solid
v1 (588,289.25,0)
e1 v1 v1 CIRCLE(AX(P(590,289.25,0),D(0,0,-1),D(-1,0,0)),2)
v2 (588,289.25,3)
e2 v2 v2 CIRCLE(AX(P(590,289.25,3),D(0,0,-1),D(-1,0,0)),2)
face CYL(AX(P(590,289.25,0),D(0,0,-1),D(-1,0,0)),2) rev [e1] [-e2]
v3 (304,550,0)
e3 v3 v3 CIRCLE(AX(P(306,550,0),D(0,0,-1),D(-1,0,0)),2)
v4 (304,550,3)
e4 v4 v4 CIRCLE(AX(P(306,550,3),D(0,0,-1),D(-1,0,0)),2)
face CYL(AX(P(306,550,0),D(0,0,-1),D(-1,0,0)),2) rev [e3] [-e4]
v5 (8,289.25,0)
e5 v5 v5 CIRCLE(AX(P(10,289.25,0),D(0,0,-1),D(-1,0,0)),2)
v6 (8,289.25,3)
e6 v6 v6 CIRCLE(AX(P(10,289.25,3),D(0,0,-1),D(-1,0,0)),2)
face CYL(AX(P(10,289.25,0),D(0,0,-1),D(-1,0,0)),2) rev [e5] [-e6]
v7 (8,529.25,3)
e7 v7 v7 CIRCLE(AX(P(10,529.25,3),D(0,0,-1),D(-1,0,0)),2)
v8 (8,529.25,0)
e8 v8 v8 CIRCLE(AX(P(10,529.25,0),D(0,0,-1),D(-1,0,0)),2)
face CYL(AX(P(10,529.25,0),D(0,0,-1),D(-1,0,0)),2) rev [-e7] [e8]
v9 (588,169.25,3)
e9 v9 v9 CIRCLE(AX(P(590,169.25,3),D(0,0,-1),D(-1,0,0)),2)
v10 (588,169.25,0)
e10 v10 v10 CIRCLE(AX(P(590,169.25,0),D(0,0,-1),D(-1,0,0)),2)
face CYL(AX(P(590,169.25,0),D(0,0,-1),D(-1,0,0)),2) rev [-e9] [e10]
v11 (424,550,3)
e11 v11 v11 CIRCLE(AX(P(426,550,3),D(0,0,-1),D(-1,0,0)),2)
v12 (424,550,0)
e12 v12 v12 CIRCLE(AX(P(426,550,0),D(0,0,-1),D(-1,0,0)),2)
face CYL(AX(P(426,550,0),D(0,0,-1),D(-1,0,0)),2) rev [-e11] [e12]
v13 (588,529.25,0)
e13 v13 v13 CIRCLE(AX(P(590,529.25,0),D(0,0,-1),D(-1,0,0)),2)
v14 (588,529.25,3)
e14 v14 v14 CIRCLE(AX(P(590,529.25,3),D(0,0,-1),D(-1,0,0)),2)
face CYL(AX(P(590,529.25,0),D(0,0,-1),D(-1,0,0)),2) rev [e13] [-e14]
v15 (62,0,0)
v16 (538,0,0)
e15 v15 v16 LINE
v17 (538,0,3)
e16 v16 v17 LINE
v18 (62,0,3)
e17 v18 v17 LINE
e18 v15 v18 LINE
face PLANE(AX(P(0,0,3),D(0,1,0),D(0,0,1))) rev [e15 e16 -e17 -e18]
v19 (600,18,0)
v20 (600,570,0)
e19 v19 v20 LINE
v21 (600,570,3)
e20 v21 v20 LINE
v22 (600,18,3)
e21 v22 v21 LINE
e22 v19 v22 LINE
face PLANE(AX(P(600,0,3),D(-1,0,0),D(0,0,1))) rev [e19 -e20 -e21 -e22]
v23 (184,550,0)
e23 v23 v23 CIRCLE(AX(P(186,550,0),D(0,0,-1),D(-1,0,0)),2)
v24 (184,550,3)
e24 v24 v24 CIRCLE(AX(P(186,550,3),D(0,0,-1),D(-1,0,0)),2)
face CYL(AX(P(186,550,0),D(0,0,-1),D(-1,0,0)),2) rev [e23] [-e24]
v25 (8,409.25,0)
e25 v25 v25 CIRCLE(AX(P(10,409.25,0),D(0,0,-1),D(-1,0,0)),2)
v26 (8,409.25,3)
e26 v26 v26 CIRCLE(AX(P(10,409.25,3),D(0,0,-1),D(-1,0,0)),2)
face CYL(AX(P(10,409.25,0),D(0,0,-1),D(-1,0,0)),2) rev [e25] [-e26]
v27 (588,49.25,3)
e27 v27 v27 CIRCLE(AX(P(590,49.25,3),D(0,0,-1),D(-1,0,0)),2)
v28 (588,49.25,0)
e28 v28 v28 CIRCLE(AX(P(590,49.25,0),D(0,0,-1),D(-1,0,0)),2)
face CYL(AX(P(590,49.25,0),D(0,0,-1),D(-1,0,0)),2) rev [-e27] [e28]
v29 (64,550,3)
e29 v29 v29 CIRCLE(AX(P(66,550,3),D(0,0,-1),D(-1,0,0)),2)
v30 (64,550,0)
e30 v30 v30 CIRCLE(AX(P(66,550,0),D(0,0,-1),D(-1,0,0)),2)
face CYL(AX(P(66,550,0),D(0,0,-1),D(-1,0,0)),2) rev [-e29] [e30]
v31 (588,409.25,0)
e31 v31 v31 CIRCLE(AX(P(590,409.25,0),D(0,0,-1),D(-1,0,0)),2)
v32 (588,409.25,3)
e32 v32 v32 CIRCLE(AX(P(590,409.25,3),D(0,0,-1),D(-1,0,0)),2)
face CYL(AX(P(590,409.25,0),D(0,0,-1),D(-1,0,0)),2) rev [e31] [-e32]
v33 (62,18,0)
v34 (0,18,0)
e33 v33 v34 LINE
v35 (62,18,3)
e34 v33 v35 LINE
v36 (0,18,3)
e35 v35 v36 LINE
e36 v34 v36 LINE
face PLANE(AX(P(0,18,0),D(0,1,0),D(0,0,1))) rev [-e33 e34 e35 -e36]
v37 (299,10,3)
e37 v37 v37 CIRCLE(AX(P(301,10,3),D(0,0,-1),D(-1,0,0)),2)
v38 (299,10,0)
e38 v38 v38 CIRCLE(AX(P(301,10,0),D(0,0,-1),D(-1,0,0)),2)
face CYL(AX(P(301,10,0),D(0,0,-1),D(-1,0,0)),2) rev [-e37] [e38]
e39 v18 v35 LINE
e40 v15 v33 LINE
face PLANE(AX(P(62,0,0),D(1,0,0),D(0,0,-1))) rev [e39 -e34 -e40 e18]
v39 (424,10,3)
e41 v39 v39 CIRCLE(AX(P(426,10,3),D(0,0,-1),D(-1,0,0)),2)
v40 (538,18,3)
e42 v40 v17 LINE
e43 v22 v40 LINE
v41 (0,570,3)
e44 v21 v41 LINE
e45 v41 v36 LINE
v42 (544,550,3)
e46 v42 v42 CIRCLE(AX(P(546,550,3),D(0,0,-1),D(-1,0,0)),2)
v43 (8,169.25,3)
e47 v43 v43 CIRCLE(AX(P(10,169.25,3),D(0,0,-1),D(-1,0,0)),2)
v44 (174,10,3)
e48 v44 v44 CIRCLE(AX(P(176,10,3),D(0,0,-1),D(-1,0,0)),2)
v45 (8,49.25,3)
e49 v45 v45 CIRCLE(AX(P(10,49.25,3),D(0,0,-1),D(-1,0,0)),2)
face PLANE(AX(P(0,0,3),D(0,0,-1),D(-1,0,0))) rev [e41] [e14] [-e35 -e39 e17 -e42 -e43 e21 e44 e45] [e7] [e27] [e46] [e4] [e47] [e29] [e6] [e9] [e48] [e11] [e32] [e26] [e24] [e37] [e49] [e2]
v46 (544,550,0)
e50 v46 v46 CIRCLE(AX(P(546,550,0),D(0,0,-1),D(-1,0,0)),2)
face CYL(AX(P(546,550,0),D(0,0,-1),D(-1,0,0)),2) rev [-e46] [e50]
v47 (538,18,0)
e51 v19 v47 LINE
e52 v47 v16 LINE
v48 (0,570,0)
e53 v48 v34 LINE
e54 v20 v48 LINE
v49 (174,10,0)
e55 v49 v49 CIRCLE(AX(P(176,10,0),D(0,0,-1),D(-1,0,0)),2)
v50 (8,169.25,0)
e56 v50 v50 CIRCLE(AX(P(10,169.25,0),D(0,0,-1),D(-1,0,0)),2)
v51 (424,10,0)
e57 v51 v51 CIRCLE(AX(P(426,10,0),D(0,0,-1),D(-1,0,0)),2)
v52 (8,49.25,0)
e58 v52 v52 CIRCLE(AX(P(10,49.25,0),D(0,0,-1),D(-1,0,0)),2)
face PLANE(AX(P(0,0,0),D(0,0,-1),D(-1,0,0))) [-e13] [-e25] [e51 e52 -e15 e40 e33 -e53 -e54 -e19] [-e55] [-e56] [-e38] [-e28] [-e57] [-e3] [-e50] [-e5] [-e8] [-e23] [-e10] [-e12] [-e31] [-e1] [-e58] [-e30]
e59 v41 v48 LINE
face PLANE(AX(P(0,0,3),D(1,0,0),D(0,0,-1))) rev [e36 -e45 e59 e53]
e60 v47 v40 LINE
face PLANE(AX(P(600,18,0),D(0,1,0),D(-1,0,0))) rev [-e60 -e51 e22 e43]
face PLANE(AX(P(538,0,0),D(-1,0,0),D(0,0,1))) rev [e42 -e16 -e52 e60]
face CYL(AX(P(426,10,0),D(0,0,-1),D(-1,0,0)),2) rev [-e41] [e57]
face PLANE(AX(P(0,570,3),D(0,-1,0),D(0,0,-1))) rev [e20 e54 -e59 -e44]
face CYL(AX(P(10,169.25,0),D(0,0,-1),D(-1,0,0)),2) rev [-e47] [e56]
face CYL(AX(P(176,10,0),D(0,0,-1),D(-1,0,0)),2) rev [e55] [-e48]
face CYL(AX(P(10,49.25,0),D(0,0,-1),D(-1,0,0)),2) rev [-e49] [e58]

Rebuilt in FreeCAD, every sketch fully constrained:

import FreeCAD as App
import Part
import Sketcher
from FreeCAD import Vector

doc = App.newDocument("Part")
body = doc.addObject("PartDesign::Body", "Body")

sketch1 = doc.addObject("Sketcher::SketchObject", "Sketch")
body.addObject(sketch1)
sketch1.AttachmentSupport = (doc.XY_Plane, [""])
sketch1.MapMode = "FlatFace"
sketch1.addGeometry([
    Part.LineSegment(Vector(0, 570, 0), Vector(0, 0, 0)),
    Part.LineSegment(Vector(0, 0, 0), Vector(600, 0, 0)),
    Part.LineSegment(Vector(600, 0, 0), Vector(600, 570, 0)),
    Part.LineSegment(Vector(600, 570, 0), Vector(0, 570, 0)),
], False)
sketch1.addConstraint([
    Sketcher.Constraint("Coincident", 0, 2, 1, 1),
    Sketcher.Constraint("Coincident", 1, 2, 2, 1),
    Sketcher.Constraint("Coincident", 2, 2, 3, 1),
    Sketcher.Constraint("Coincident", 3, 2, 0, 1),
    Sketcher.Constraint("Vertical", 0),
    Sketcher.Constraint("Horizontal", 1),
    Sketcher.Constraint("Vertical", 2),
    Sketcher.Constraint("Horizontal", 3),
    Sketcher.Constraint("Coincident", 0, 2, -1, 1),
    Sketcher.Constraint("DistanceX", 1, 1, 1, 2, 600.0),
    Sketcher.Constraint("DistanceY", 0, 2, 0, 1, 570.0),
])
pad1 = doc.addObject("PartDesign::Pad", "Pad")
body.addObject(pad1)
pad1.Profile = sketch1
pad1.Length = 3

sketch2 = doc.addObject("Sketcher::SketchObject", "Sketch001")
body.addObject(sketch2)
sketch2.AttachmentSupport = (doc.XY_Plane, [""])
sketch2.MapMode = "FlatFace"
sketch2.AttachmentOffset = App.Placement(Vector(0, 0, 3), App.Rotation())
sketch2.addGeometry([
    Part.LineSegment(Vector(0, 18, 0), Vector(0, 0, 0)),
    Part.LineSegment(Vector(0, 0, 0), Vector(62, 0, 0)),
    Part.LineSegment(Vector(62, 0, 0), Vector(62, 18, 0)),
    Part.LineSegment(Vector(62, 18, 0), Vector(0, 18, 0)),
    Part.LineSegment(Vector(538, 18, 0), Vector(538, 0, 0)),
    Part.LineSegment(Vector(538, 0, 0), Vector(600, 0, 0)),
    Part.LineSegment(Vector(600, 0, 0), Vector(600, 18, 0)),
    Part.LineSegment(Vector(600, 18, 0), Vector(538, 18, 0)),
], False)
sketch2.addConstraint([
    Sketcher.Constraint("Coincident", 0, 2, 1, 1),
    Sketcher.Constraint("Coincident", 1, 2, 2, 1),
    Sketcher.Constraint("Coincident", 2, 2, 3, 1),
    Sketcher.Constraint("Coincident", 3, 2, 0, 1),
    Sketcher.Constraint("Coincident", 4, 2, 5, 1),
    Sketcher.Constraint("Coincident", 5, 2, 6, 1),
    Sketcher.Constraint("Coincident", 6, 2, 7, 1),
    Sketcher.Constraint("Coincident", 7, 2, 4, 1),
    Sketcher.Constraint("Vertical", 0),
    Sketcher.Constraint("Horizontal", 1),
    Sketcher.Constraint("Vertical", 2),
    Sketcher.Constraint("Horizontal", 3),
    Sketcher.Constraint("Vertical", 4),
    Sketcher.Constraint("Horizontal", 5),
    Sketcher.Constraint("Vertical", 6),
    Sketcher.Constraint("Horizontal", 7),
    Sketcher.Constraint("Coincident", 0, 2, -1, 1),
    Sketcher.Constraint("PointOnObject", 4, 2, -1),
    Sketcher.Constraint("Horizontal", 3, 2, 6, 2),
    Sketcher.Constraint("Equal", 3, 5),
    Sketcher.Constraint("DistanceX", 1, 1, 1, 2, 62.0),
    Sketcher.Constraint("DistanceY", 0, 2, 0, 1, 18.0),
    Sketcher.Constraint("DistanceX", -1, 1, 4, 2, 538.0),
])
pocket1 = doc.addObject("PartDesign::Pocket", "Pocket")
body.addObject(pocket1)
pocket1.Profile = sketch2
pocket1.Length = 3

sketch3 = doc.addObject("Sketcher::SketchObject", "Sketch002")
body.addObject(sketch3)
sketch3.AttachmentSupport = (doc.XY_Plane, [""])
sketch3.MapMode = "FlatFace"
sketch3.addGeometry([
    Part.Circle(Vector(546, 550, 0), Vector(0, 0, 1), 2),
    Part.Circle(Vector(590, 529.25, 0), Vector(0, 0, 1), 2),
    Part.Circle(Vector(426, 10, 0), Vector(0, 0, 1), 2),
    Part.Circle(Vector(426, 550, 0), Vector(0, 0, 1), 2),
    Part.Circle(Vector(306, 550, 0), Vector(0, 0, 1), 2),
    Part.Circle(Vector(186, 550, 0), Vector(0, 0, 1), 2),
    Part.Circle(Vector(66, 550, 0), Vector(0, 0, 1), 2),
    Part.Circle(Vector(10, 529.25, 0), Vector(0, 0, 1), 2),
    Part.Circle(Vector(10, 409.25, 0), Vector(0, 0, 1), 2),
    Part.Circle(Vector(10, 289.25, 0), Vector(0, 0, 1), 2),
    Part.Circle(Vector(10, 169.25, 0), Vector(0, 0, 1), 2),
    Part.Circle(Vector(10, 49.25, 0), Vector(0, 0, 1), 2),
    Part.Circle(Vector(590, 409.25, 0), Vector(0, 0, 1), 2),
    Part.Circle(Vector(590, 289.25, 0), Vector(0, 0, 1), 2),
    Part.Circle(Vector(590, 169.25, 0), Vector(0, 0, 1), 2),
    Part.Circle(Vector(590, 49.25, 0), Vector(0, 0, 1), 2),
    Part.Circle(Vector(301, 10, 0), Vector(0, 0, 1), 2),
    Part.Circle(Vector(176, 10, 0), Vector(0, 0, 1), 2),
], False)
sketch3.addConstraint([
    Sketcher.Constraint("Equal", 0, 1),
    Sketcher.Constraint("Equal", 1, 2),
    Sketcher.Constraint("Equal", 2, 3),
    Sketcher.Constraint("Equal", 3, 4),
    Sketcher.Constraint("Equal", 4, 5),
    Sketcher.Constraint("Equal", 5, 6),
    Sketcher.Constraint("Equal", 6, 7),
    Sketcher.Constraint("Equal", 7, 8),
    Sketcher.Constraint("Equal", 8, 9),
    Sketcher.Constraint("Equal", 9, 10),
    Sketcher.Constraint("Equal", 10, 11),
    Sketcher.Constraint("Equal", 11, 12),
    Sketcher.Constraint("Equal", 12, 13),
    Sketcher.Constraint("Equal", 13, 14),
    Sketcher.Constraint("Equal", 14, 15),
    Sketcher.Constraint("Equal", 15, 16),
    Sketcher.Constraint("Equal", 16, 17),
    Sketcher.Constraint("Horizontal", 0, 3, 3, 3),
    Sketcher.Constraint("Horizontal", 3, 3, 4, 3),
    Sketcher.Constraint("Horizontal", 4, 3, 5, 3),
    Sketcher.Constraint("Horizontal", 5, 3, 6, 3),
    Sketcher.Constraint("Horizontal", 1, 3, 7, 3),
    Sketcher.Constraint("Horizontal", 8, 3, 12, 3),
    Sketcher.Constraint("Horizontal", 9, 3, 13, 3),
    Sketcher.Constraint("Horizontal", 10, 3, 14, 3),
    Sketcher.Constraint("Horizontal", 11, 3, 15, 3),
    Sketcher.Constraint("Horizontal", 2, 3, 16, 3),
    Sketcher.Constraint("Horizontal", 16, 3, 17, 3),
    Sketcher.Constraint("Vertical", 2, 3, 3, 3),
    Sketcher.Constraint("Vertical", 7, 3, 8, 3),
    Sketcher.Constraint("Vertical", 8, 3, 9, 3),
    Sketcher.Constraint("Vertical", 9, 3, 10, 3),
    Sketcher.Constraint("Vertical", 10, 3, 11, 3),
    Sketcher.Constraint("Vertical", 1, 3, 12, 3),
    Sketcher.Constraint("Vertical", 12, 3, 13, 3),
    Sketcher.Constraint("Vertical", 13, 3, 14, 3),
    Sketcher.Constraint("Vertical", 14, 3, 15, 3),
    Sketcher.Constraint("Diameter", 0, 4.0),
    Sketcher.Constraint("DistanceX", -1, 1, 0, 3, 546.0),
    Sketcher.Constraint("DistanceY", -1, 1, 0, 3, 550.0),
    Sketcher.Constraint("DistanceX", -1, 1, 1, 3, 590.0),
    Sketcher.Constraint("DistanceX", -1, 1, 2, 3, 426.0),
    Sketcher.Constraint("DistanceY", -1, 1, 2, 3, 10.0),
    Sketcher.Constraint("DistanceX", -1, 1, 4, 3, 306.0),
    Sketcher.Constraint("DistanceX", -1, 1, 5, 3, 186.0),
    Sketcher.Constraint("DistanceX", -1, 1, 6, 3, 66.0),
    Sketcher.Constraint("DistanceX", -1, 1, 7, 3, 10.0),
    Sketcher.Constraint("DistanceX", -1, 1, 16, 3, 301.0),
    Sketcher.Constraint("DistanceX", -1, 1, 17, 3, 176.0),
    Sketcher.Constraint("DistanceY", 8, 3, 7, 3, 120.0),
    Sketcher.Constraint("DistanceY", 9, 3, 8, 3, 120.0),
    Sketcher.Constraint("DistanceY", 10, 3, 9, 3, 120.0),
    Sketcher.Constraint("DistanceY", 11, 3, 10, 3, 120.0),
    Sketcher.Constraint("DistanceY", -1, 1, 1, 3, 529.25),
])
doc.recompute()
hole = doc.addObject("PartDesign::Hole", "Hole")
body.addObject(hole)
hole.Profile = sketch3
hole.ThreadType = "None"
hole.Diameter = 4
hole.DepthType = "ThroughAll"
hole.Reversed = True

doc.recompute()
